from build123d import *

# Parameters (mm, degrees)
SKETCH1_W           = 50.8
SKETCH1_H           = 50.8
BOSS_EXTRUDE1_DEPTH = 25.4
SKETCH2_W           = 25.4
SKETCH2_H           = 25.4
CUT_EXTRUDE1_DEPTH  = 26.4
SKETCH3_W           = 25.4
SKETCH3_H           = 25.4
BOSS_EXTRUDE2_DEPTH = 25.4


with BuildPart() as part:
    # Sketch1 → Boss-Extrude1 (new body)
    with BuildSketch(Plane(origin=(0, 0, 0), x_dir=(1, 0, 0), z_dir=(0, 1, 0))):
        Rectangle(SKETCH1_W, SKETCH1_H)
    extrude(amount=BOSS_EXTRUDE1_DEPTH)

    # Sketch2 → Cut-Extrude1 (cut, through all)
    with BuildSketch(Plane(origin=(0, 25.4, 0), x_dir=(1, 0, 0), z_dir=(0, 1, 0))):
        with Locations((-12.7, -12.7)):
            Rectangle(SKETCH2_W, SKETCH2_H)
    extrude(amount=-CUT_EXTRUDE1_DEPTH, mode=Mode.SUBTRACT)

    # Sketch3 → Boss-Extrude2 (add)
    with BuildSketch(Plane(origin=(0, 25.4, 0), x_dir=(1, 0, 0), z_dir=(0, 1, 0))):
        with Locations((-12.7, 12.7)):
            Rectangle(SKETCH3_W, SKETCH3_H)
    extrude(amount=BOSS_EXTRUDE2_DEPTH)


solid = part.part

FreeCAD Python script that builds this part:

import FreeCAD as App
import Part
import Sketcher
Q = App.Units.Quantity

doc = App.newDocument("Part")
body = doc.addObject("PartDesign::Body", "Body")

sketch1 = doc.addObject("Sketcher::SketchObject", "Sketch")
body.addObject(sketch1)
sketch1.AttachmentSupport = (doc.XZ_Plane, [""])
sketch1.MapMode = "FlatFace"
sketch1.addGeometry(Part.LineSegment(App.Vector(-25.4, -25.4, 0), App.Vector(-25.4, 25.4, 0)), False)
sketch1.addGeometry(Part.LineSegment(App.Vector(-25.4, 25.4, 0), App.Vector(25.4, 25.4, 0)), False)
sketch1.addGeometry(Part.LineSegment(App.Vector(25.4, 25.4, 0), App.Vector(25.4, -25.4, 0)), False)
sketch1.addGeometry(Part.LineSegment(App.Vector(25.4, -25.4, 0), App.Vector(-25.4, -25.4, 0)), False)
sketch1.addConstraint(Sketcher.Constraint("Coincident", 0, 2, 1, 1))
sketch1.addConstraint(Sketcher.Constraint("Coincident", 1, 2, 2, 1))
sketch1.addConstraint(Sketcher.Constraint("Coincident", 2, 2, 3, 1))
sketch1.addConstraint(Sketcher.Constraint("Coincident", 3, 2, 0, 1))
sketch1.addConstraint(Sketcher.Constraint("Vertical", 0))
sketch1.addConstraint(Sketcher.Constraint("Horizontal", 1))
sketch1.addConstraint(Sketcher.Constraint("Vertical", 2))
sketch1.addConstraint(Sketcher.Constraint("Horizontal", 3))
sketch1.addConstraint(Sketcher.Constraint("Symmetric", 0, 2, 2, 2, -1, 1))
sketch1.addConstraint(Sketcher.Constraint("Equal", 3, 0))
sketch1.addConstraint(Sketcher.Constraint("DistanceX", 1, 1, 1, 2, Q("2 in")))
pad1 = doc.addObject("PartDesign::Pad", "Pad")
body.addObject(pad1)
pad1.Profile = sketch1
pad1.Length = Q("1 in")
pad1.Reversed = True

sketch2 = doc.addObject("Sketcher::SketchObject", "Sketch001")
body.addObject(sketch2)
sketch2.AttachmentSupport = (doc.XZ_Plane, [""])
sketch2.MapMode = "FlatFace"
sketch2.AttachmentOffset = App.Placement(App.Vector(0, 0, -1 * 25.4), App.Rotation())
sketch2.addGeometry(Part.LineSegment(App.Vector(-25.4, 0, 0), App.Vector(-25.4, 25.4, 0)), False)
sketch2.addGeometry(Part.LineSegment(App.Vector(-25.4, 25.4, 0), App.Vector(0, 25.4, 0)), False)
sketch2.addGeometry(Part.LineSegment(App.Vector(0, 25.4, 0), App.Vector(0, 0, 0)), False)
sketch2.addGeometry(Part.LineSegment(App.Vector(0, 0, 0), App.Vector(-25.4, 0, 0)), False)
sketch2.addConstraint(Sketcher.Constraint("Coincident", 0, 2, 1, 1))
sketch2.addConstraint(Sketcher.Constraint("Coincident", 1, 2, 2, 1))
sketch2.addConstraint(Sketcher.Constraint("Coincident", 2, 2, 3, 1))
sketch2.addConstraint(Sketcher.Constraint("Coincident", 3, 2, 0, 1))
sketch2.addConstraint(Sketcher.Constraint("Vertical", 0))
sketch2.addConstraint(Sketcher.Constraint("Horizontal", 1))
sketch2.addConstraint(Sketcher.Constraint("Vertical", 2))
sketch2.addConstraint(Sketcher.Constraint("Horizontal", 3))
sketch2.addConstraint(Sketcher.Constraint("Coincident", 2, 2, -1, 1))
sketch2.addConstraint(Sketcher.Constraint("Equal", 3, 0))
sketch2.addConstraint(Sketcher.Constraint("DistanceX", 1, 1, 1, 2, Q("1 in")))
pocket1 = doc.addObject("PartDesign::Pocket", "Pocket")
body.addObject(pocket1)
pocket1.Profile = sketch2
pocket1.Type = "ThroughAll"
pocket1.Reversed = True

sketch3 = doc.addObject("Sketcher::SketchObject", "Sketch002")
body.addObject(sketch3)
sketch3.AttachmentSupport = (doc.XZ_Plane, [""])
sketch3.MapMode = "FlatFace"
sketch3.AttachmentOffset = App.Placement(App.Vector(0, 0, -1 * 25.4), App.Rotation())
sketch3.addGeometry(Part.LineSegment(App.Vector(-25.4, -25.4, 0), App.Vector(-25.4, 0, 0)), False)
sketch3.addGeometry(Part.LineSegment(App.Vector(-25.4, 0, 0), App.Vector(0, 0, 0)), False)
sketch3.addGeometry(Part.LineSegment(App.Vector(0, 0, 0), App.Vector(0, -25.4, 0)), False)
sketch3.addGeometry(Part.LineSegment(App.Vector(0, -25.4, 0), App.Vector(-25.4, -25.4, 0)), False)
sketch3.addConstraint(Sketcher.Constraint("Coincident", 0, 2, 1, 1))
sketch3.addConstraint(Sketcher.Constraint("Coincident", 1, 2, 2, 1))
sketch3.addConstraint(Sketcher.Constraint("Coincident", 2, 2, 3, 1))
sketch3.addConstraint(Sketcher.Constraint("Coincident", 3, 2, 0, 1))
sketch3.addConstraint(Sketcher.Constraint("Vertical", 0))
sketch3.addConstraint(Sketcher.Constraint("Horizontal", 1))
sketch3.addConstraint(Sketcher.Constraint("Vertical", 2))
sketch3.addConstraint(Sketcher.Constraint("Horizontal", 3))
sketch3.addConstraint(Sketcher.Constraint("Coincident", 1, 2, -1, 1))
sketch3.addConstraint(Sketcher.Constraint("Equal", 3, 0))
sketch3.addConstraint(Sketcher.Constraint("DistanceX", 1, 1, 1, 2, Q("1 in")))
pad2 = doc.addObject("PartDesign::Pad", "Pad001")
body.addObject(pad2)
pad2.Profile = sketch3
pad2.Length = Q("1 in")
pad2.Reversed = True

doc.recompute()
